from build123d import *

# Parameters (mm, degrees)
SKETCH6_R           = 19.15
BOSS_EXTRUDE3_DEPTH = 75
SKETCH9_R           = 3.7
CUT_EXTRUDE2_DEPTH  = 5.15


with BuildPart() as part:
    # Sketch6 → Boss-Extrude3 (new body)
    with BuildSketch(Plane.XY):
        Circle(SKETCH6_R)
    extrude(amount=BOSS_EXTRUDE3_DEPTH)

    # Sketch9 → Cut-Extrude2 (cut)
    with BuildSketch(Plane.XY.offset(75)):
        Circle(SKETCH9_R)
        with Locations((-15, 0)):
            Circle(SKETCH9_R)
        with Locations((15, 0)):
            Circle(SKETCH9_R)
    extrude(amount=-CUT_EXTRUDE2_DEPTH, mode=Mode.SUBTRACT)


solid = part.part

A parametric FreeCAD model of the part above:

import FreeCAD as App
import Part
import Sketcher

V = App.Vector
Q = App.Units.Quantity

doc = App.newDocument("Part")
params = doc.addObject("Spreadsheet::Sheet", "Params")
for row, (alias, value) in enumerate([
    ("sketch1_diameter", "38.3 mm"),
    ("pad1_length", "75 mm"),
    ("sketch2_diameter", "7.4 mm"),
    ("pocket1_length", "5.15 mm"),
], start=1):
    params.set(f"A{row}", alias)
    params.set(f"B{row}", "=" + value)
    params.setAlias(f"B{row}", alias)

body = doc.addObject("PartDesign::Body", "Body")

# Sketch on XY plane
sketch1 = doc.addObject("Sketcher::SketchObject", "Sketch")
body.addObject(sketch1)
sketch1.AttachmentSupport = (doc.XY_Plane, [""])
sketch1.MapMode = "FlatFace"
sketch1.addGeometry(Part.Circle(V(0, 0, 0), V(0, 0, 1), 19), False)
sketch1.addConstraint(Sketcher.Constraint("Coincident", 0, 3, -1, 1))
sketch1.addConstraint(Sketcher.Constraint("Diameter", 0, Q("38.3 mm")))
sketch1.setExpression("Constraints[1]", "Params.sketch1_diameter")
pad1 = doc.addObject("PartDesign::Pad", "Pad")
body.addObject(pad1)
pad1.Profile = sketch1
pad1.setExpression("Length", "Params.pad1_length")

# Sketch on XY plane
sketch2 = doc.addObject("Sketcher::SketchObject", "Sketch001")
body.addObject(sketch2)
sketch2.AttachmentSupport = (doc.XY_Plane, [""])
sketch2.MapMode = "FlatFace"
sketch2.AttachmentOffset = App.Placement(V(0, 0, 75), App.Rotation())
sketch2.addGeometry(Part.Circle(V(0, 0, 0), V(0, 0, 1), 3.7), False)
sketch2.addGeometry(Part.Circle(V(-15, 0, 0), V(0, 0, 1), 3.7), False)
sketch2.addGeometry(Part.Circle(V(15, 0, 0), V(0, 0, 1), 3.7), False)
sketch2.addConstraint(Sketcher.Constraint("Coincident", 0, 3, -1, 1))
sketch2.addConstraint(Sketcher.Constraint("Equal", 0, 1))
sketch2.addConstraint(Sketcher.Constraint("Equal", 1, 2))
sketch2.addConstraint(Sketcher.Constraint("Symmetric", 1, 3, 2, 3, -1, 1))
sketch2.addConstraint(Sketcher.Constraint("PointOnObject", 1, 3, -1))
sketch2.addConstraint(Sketcher.Constraint("Diameter", 0, Q("7.4 mm")))
sketch2.addConstraint(Sketcher.Constraint("DistanceX", 1, 3, -1, 1, Q("15 mm")))
sketch2.setExpression("Constraints[5]", "Params.sketch2_diameter")
pocket1 = doc.addObject("PartDesign::Pocket", "Pocket")
body.addObject(pocket1)
pocket1.Profile = sketch2
pocket1.setExpression("Length", "Params.pocket1_length")

doc.recompute()
